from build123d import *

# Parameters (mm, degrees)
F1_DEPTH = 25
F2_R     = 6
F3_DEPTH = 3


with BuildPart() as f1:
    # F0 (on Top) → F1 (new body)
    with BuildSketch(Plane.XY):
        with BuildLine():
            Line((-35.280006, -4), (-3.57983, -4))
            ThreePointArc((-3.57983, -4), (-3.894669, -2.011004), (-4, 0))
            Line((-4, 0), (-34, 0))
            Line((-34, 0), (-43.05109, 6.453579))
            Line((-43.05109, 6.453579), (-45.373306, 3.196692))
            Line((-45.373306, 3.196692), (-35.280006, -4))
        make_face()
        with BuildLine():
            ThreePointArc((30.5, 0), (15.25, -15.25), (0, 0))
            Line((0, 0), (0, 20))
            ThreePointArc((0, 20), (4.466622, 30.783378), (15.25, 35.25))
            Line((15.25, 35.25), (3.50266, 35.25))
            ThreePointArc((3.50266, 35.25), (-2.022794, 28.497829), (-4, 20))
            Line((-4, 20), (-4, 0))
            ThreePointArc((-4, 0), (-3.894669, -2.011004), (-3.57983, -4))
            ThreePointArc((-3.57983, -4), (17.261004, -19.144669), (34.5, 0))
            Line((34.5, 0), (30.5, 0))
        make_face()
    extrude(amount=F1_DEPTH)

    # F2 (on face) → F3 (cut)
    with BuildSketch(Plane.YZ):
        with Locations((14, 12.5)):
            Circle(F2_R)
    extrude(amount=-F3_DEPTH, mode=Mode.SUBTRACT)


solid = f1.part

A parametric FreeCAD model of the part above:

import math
import FreeCAD as App
import Part
import Sketcher

V = App.Vector

doc = App.newDocument("Part")
body = doc.addObject("PartDesign::Body", "Body")

# Sketch on XY plane
sketch1 = body.newObject("Sketcher::SketchObject", "Sketch")
sketch1.AttachmentSupport = (doc.getObject("XY_Plane"), [""])
sketch1.MapMode = "FlatFace"
sketch1.addGeometry([
    Part.LineSegment(V(-35.280006, -4, 0), V(-3.57983, -4, 0)),  # 0
    Part.ArcOfCircle(Part.Circle(V(15.25, 0, 0), V(0, 0, 1), 19.25), math.radians(-168.006998), math.radians(-0.000001)),  # 1
    Part.LineSegment(V(34.5, 0, 0), V(30.5, 0, 0)),  # 2
    Part.ArcOfCircle(Part.Circle(V(15.25, 0, 0), V(0, 0, 1), 15.25), math.radians(180), math.radians(360)),  # 3
    Part.LineSegment(V(0, 0, 0), V(0, 20, 0)),  # 4
    Part.ArcOfCircle(Part.Circle(V(15.250001, 19.999999, 0), V(0, 0, 1), 15.250001), math.radians(90.000005), math.radians(179.999995)),  # 5
    Part.LineSegment(V(15.25, 35.25, 0), V(3.50266, 35.25, 0)),  # 6
    Part.ArcOfCircle(Part.Circle(V(15.249997, 20.000001, 0), V(0, 0, 1), 19.249997), math.radians(127.607681), math.radians(180.000004)),  # 7
    Part.LineSegment(V(-4, 20, 0), V(-4, 0, 0)),  # 8
    Part.LineSegment(V(-4, 0, 0), V(-34, 0, 0)),  # 9
    Part.LineSegment(V(-34, 0, 0), V(-43.05109, 6.453579, 0)),  # 10
    Part.LineSegment(V(-43.05109, 6.453579, 0), V(-45.373306, 3.196692, 0)),  # 11
    Part.LineSegment(V(-45.373306, 3.196692, 0), V(-35.280006, -4, 0)),  # 12
], False)
sketch1.addConstraint([
    Sketcher.Constraint("Coincident", 0, 2, 1, 1),
    Sketcher.Constraint("Coincident", 1, 2, 2, 1),
    Sketcher.Constraint("Coincident", 2, 2, 3, 2),
    Sketcher.Constraint("Tangent", 3, 1, 4, 1),
    Sketcher.Constraint("Tangent", 4, 2, 5, 2),
    Sketcher.Constraint("Tangent", 5, 1, 6, 1),
    Sketcher.Constraint("Coincident", 6, 2, 7, 1),
    Sketcher.Constraint("Tangent", 7, 2, 8, 1),
    Sketcher.Constraint("Coincident", 8, 2, 9, 1),
    Sketcher.Constraint("Coincident", 9, 2, 10, 1),
    Sketcher.Constraint("Coincident", 10, 2, 11, 1),
    Sketcher.Constraint("Coincident", 11, 2, 12, 1),
    Sketcher.Constraint("Coincident", 12, 2, 0, 1),
    Sketcher.Constraint("Horizontal", 0),
    Sketcher.Constraint("Horizontal", 2),
    Sketcher.Constraint("Vertical", 4),
    Sketcher.Constraint("Horizontal", 6),
    Sketcher.Constraint("Vertical", 8),
    Sketcher.Constraint("Horizontal", 9),
    Sketcher.Constraint("Coincident", 3, 1, -1, 1),
    Sketcher.Constraint("Coincident", 3, 3, 1, 3),
    Sketcher.Constraint("Coincident", 7, 3, 5, 3),
    Sketcher.Constraint("Equal", 3, 5),
    Sketcher.Constraint("PointOnObject", 1, 2, -1),
    Sketcher.Constraint("PointOnObject", 8, 2, -1),
    Sketcher.Constraint("Perpendicular", 10, 11),
    Sketcher.Constraint("Perpendicular", 11, 12),
    Sketcher.Constraint("DistanceX", 2, 2, 2, 1, 4.0),
    Sketcher.Constraint("DistanceX", 9, 2, 9, 1, 30.0),
    Sketcher.Constraint("DistanceY", 4, 1, 4, 2, 20.0),
    Sketcher.Constraint("Radius", 1, 19.25),
    Sketcher.Constraint("Distance", 11, 4.0),
    Sketcher.Constraint("DistanceY", 0, 2, -1, 1, 4.0),
    Sketcher.Constraint("DistanceX", 7, 2, -1, 1, 4.0),
    Sketcher.Constraint("DistanceX", 11, 2, 12, 2, 10.0933),
    Sketcher.Constraint("DistanceX", 0, 1, 0, 2, 31.700176),
])
pad1 = body.newObject("PartDesign::Pad", "Pad")
pad1.Profile = sketch1
pad1.Length = 25

# Sketch on YZ plane
sketch2 = body.newObject("Sketcher::SketchObject", "Sketch001")
sketch2.AttachmentSupport = (doc.getObject("YZ_Plane"), [""])
sketch2.MapMode = "FlatFace"
sketch2.addGeometry(Part.Circle(V(14, 12.5, 0), V(0, 0, 1), 6), False)
sketch2.addConstraint([
    Sketcher.Constraint("Diameter", 0, 12.0),
    Sketcher.Constraint("DistanceX", -1, 1, 0, 3, 14.0),
    Sketcher.Constraint("DistanceY", -1, 1, 0, 3, 12.5),
])
pocket1 = body.newObject("PartDesign::Pocket", "Pocket")
pocket1.Profile = sketch2
pocket1.Length = 3

doc.recompute()
